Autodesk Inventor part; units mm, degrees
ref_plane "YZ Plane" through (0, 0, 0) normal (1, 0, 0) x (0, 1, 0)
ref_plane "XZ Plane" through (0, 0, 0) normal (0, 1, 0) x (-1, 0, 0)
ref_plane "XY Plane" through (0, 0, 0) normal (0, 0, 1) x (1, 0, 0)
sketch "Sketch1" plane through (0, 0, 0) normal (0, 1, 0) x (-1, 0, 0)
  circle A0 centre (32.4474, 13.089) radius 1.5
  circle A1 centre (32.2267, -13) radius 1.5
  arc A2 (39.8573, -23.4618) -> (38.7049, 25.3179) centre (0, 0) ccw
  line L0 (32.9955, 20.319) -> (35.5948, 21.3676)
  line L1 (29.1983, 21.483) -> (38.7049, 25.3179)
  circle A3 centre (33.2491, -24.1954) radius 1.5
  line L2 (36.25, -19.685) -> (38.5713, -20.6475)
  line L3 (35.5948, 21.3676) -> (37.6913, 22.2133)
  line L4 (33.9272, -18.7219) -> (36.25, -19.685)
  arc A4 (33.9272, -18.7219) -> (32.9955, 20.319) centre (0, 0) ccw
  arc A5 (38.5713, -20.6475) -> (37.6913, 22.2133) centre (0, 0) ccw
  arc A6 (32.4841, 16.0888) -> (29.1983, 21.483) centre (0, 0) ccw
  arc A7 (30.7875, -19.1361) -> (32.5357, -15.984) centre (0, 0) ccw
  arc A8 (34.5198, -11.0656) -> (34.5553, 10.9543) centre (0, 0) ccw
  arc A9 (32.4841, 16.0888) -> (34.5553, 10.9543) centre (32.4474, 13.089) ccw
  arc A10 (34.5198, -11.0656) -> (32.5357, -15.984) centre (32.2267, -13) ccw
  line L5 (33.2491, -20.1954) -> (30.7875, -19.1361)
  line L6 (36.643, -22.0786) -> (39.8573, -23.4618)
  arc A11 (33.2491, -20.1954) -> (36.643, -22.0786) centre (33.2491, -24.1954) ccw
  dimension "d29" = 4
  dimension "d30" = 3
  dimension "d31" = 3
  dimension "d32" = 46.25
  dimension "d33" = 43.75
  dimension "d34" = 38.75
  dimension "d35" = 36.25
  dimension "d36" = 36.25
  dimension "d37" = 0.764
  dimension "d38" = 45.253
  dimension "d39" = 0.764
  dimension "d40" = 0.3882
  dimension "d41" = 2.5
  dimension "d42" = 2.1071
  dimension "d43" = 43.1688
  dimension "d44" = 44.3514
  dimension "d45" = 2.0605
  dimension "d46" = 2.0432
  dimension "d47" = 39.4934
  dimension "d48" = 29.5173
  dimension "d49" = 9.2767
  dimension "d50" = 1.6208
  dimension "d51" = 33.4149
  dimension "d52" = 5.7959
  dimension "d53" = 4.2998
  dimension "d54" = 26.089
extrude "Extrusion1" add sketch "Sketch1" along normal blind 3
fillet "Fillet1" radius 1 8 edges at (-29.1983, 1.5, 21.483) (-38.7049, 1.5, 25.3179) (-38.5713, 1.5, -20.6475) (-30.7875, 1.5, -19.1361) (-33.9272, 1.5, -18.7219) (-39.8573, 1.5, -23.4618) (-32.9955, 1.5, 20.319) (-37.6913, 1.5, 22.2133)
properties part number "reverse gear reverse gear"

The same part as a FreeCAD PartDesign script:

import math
import FreeCAD as App
import Part
import Sketcher


def edges_at(feature, points):
    """Names of the edges that pass closest to the given points."""
    edges = feature.Shape.Edges
    near = lambda p: min(range(len(edges)), key=lambda i: edges[i].distToShape(Part.Vertex(*p))[0])
    return sorted({f"Edge{near(p) + 1}" for p in points})

doc = App.newDocument("Part")
body = doc.addObject("PartDesign::Body", "Body")

sketch1 = body.newObject("Sketcher::SketchObject", "Sketch")
sketch1.AttachmentSupport = (doc.getObject("XZ_Plane"), [""])
sketch1.MapMode = "FlatFace"
sketch1.addGeometry([
    Part.LineSegment(App.Vector(-36.643, -22.0786, 0), App.Vector(-39.8573, -23.4618, 0)),
    Part.ArcOfCircle(Part.Circle(App.Vector(0, 0, 0), App.Vector(0, 0, 1), 46.249978), math.radians(146.810238), math.radians(210.482981)),
    Part.LineSegment(App.Vector(-38.7049, 25.3179, 0), App.Vector(-29.1983, 21.483, 0)),
    Part.ArcOfCircle(Part.Circle(App.Vector(-0.009899, 0.005452, 0), App.Vector(0, 0, 1), 36.238761), math.radians(143.653446), math.radians(153.652379)),
    Part.ArcOfCircle(Part.Circle(App.Vector(-32.4474, 13.089, 0), App.Vector(0, 0, 1), 3.000024), math.radians(-134.638074), math.radians(90.70093)),
    Part.ArcOfCircle(Part.Circle(App.Vector(0, 0, 0), App.Vector(0, 0, 1), 36.250052), math.radians(162.410978), math.radians(197.773671)),
    Part.ArcOfCircle(Part.Circle(App.Vector(-32.2267, -13, 0), App.Vector(0, 0, 1), 3.000035), math.radians(-95.912037), math.radians(139.849885)),
    Part.ArcOfCircle(Part.Circle(App.Vector(-0.002159, -0.001269, 0), App.Vector(0, 0, 1), 36.247468), math.radians(-153.836528), math.radians(-148.13671)),
    Part.LineSegment(App.Vector(-30.7875, -19.1361, 0), App.Vector(-33.2491, -20.1954, 0)),
    Part.ArcOfCircle(Part.Circle(App.Vector(-33.2491, -24.1954, 0), App.Vector(0, 0, 1), 4), math.radians(148.047911), math.radians(450)),
    Part.Circle(App.Vector(-33.2491, -24.1954, 0), App.Vector(0, 0, 1), 1.5),
    Part.Circle(App.Vector(-32.2267, -13, 0), App.Vector(0, 0, 1), 1.5),
    Part.Circle(App.Vector(-32.4474, 13.089, 0), App.Vector(0, 0, 1), 1.5),
    Part.ArcOfCircle(Part.Circle(App.Vector(0, 0, 0), App.Vector(0, 0, 1), 38.750025), math.radians(148.374771), math.radians(208.891042)),
    Part.LineSegment(App.Vector(-32.9955, 20.319, 0), App.Vector(-35.5948, 21.3676, 0)),
    Part.LineSegment(App.Vector(-35.5948, 21.3676, 0), App.Vector(-37.6913, 22.2133, 0)),
    Part.ArcOfCircle(Part.Circle(App.Vector(0, 0, 0), App.Vector(0, 0, 1), 43.750022), math.radians(149.487105), math.radians(208.16047)),
    Part.LineSegment(App.Vector(-38.5713, -20.6475, 0), App.Vector(-36.25, -19.685, 0)),
    Part.LineSegment(App.Vector(-36.25, -19.685, 0), App.Vector(-33.9272, -18.7219, 0)),
], False)
sketch1.addConstraint([
    Sketcher.Constraint("Coincident", 0, 2, 1, 2),
    Sketcher.Constraint("Coincident", 1, 1, 2, 1),
    Sketcher.Constraint("Coincident", 2, 2, 3, 1),
    Sketcher.Constraint("Coincident", 3, 2, 4, 2),
    Sketcher.Constraint("Coincident", 4, 1, 5, 1),
    Sketcher.Constraint("Coincident", 5, 2, 6, 2),
    Sketcher.Constraint("Coincident", 6, 1, 7, 1),
    Sketcher.Constraint("Coincident", 7, 2, 8, 1),
    Sketcher.Constraint("Coincident", 8, 2, 9, 2),
    Sketcher.Constraint("Coincident", 9, 1, 0, 1),
    Sketcher.Constraint("Coincident", 13, 1, 14, 1),
    Sketcher.Constraint("Coincident", 14, 2, 15, 1),
    Sketcher.Constraint("Coincident", 15, 2, 16, 1),
    Sketcher.Constraint("Coincident", 16, 2, 17, 1),
    Sketcher.Constraint("Coincident", 17, 2, 18, 1),
    Sketcher.Constraint("Coincident", 18, 2, 13, 2),
    Sketcher.Constraint("Coincident", 1, 3, -1, 1),
    Sketcher.Constraint("Coincident", 5, 3, -1, 1),
    Sketcher.Constraint("Coincident", 13, 3, -1, 1),
    Sketcher.Constraint("Coincident", 16, 3, -1, 1),
    Sketcher.Constraint("Coincident", 10, 3, 9, 3),
    Sketcher.Constraint("Coincident", 11, 3, 6, 3),
    Sketcher.Constraint("Coincident", 12, 3, 4, 3),
    Sketcher.Constraint("Diameter", 10, 3.0),
    Sketcher.Constraint("Diameter", 11, 3.0),
    Sketcher.Constraint("Diameter", 12, 3.0),
    Sketcher.Constraint("Radius", 4, 3.0),
    Sketcher.Constraint("Radius", 6, 3.0),
    Sketcher.Constraint("Radius", 9, 4.0),
    Sketcher.Constraint("Radius", 1, 46.25),
    Sketcher.Constraint("Radius", 5, 36.25),
    Sketcher.Constraint("Radius", 13, 38.75),
    Sketcher.Constraint("Radius", 16, 43.75),
    Sketcher.Constraint("DistanceX", 17, 2, -1, 1, 36.25),
    Sketcher.Constraint("DistanceY", 6, 3, -1, 1, 13.0),
    Sketcher.Constraint("DistanceY", 6, 3, 4, 3, 26.089),
    Sketcher.Constraint("Radius", 3, 36.2388),
    Sketcher.Constraint("Radius", 7, 36.2475),
    Sketcher.Constraint("DistanceX", 3, 3, -1, 1, 0.01),
    Sketcher.Constraint("DistanceX", 0, 2, 4, 3, 7.41),
    Sketcher.Constraint("DistanceY", 4, 3, 13, 1, 7.23),
    Sketcher.Constraint("DistanceX", 1, 1, 14, 2, 3.11),
    Sketcher.Constraint("Distance", 2, 10.251),
    Sketcher.Constraint("Distance", 17, 2.513),
    Sketcher.Constraint("DistanceX", 9, 3, -1, 1, 33.249),
    Sketcher.Constraint("DistanceY", -1, 1, 2, 2, 21.483),
    Sketcher.Constraint("DistanceX", 3, 2, -1, 1, 32.484),
    Sketcher.Constraint("DistanceY", 6, 1, -1, 1, 15.984),
    Sketcher.Constraint("DistanceY", 7, 2, -1, 1, 19.136),
    Sketcher.Constraint("DistanceX", 8, 2, -1, 1, 33.249),
    Sketcher.Constraint("DistanceX", 9, 1, -1, 1, 36.643),
    Sketcher.Constraint("DistanceY", 17, 2, -1, 1, 19.685),
    Sketcher.Constraint("DistanceY", 18, 2, -1, 1, 18.722),
    Sketcher.Constraint("DistanceX", 9, 3, 7, 3, 33.247),
    Sketcher.Constraint("DistanceX", 4, 3, 2, 2, 3.249),
    Sketcher.Constraint("DistanceX", 15, 2, 2, 2, 8.493),
    Sketcher.Constraint("DistanceY", 9, 1, 16, 2, 1.431),
    Sketcher.Constraint("Distance", 8, 2.6798),
    Sketcher.Constraint("Distance", 14, 2.8028),
])
pad1 = body.newObject("PartDesign::Pad", "Pad")
pad1.Profile = sketch1
pad1.Length = 3
pad1.Reversed = True
doc.recompute()

fillet = body.newObject("PartDesign::Fillet", "Fillet")
fillet.Base = (pad1, edges_at(pad1, [
    (-29.198, 1.5, 21.483),
    (-38.705, 1.5, 25.318),
    (-38.571, 1.5, -20.648),
    (-30.788, 1.5, -19.136),
    (-33.927, 1.5, -18.722),
    (-39.857, 1.5, -23.462),
    (-32.995, 1.5, 20.319),
    (-37.691, 1.5, 22.213),
]))
fillet.Radius = 1

doc.recompute()
